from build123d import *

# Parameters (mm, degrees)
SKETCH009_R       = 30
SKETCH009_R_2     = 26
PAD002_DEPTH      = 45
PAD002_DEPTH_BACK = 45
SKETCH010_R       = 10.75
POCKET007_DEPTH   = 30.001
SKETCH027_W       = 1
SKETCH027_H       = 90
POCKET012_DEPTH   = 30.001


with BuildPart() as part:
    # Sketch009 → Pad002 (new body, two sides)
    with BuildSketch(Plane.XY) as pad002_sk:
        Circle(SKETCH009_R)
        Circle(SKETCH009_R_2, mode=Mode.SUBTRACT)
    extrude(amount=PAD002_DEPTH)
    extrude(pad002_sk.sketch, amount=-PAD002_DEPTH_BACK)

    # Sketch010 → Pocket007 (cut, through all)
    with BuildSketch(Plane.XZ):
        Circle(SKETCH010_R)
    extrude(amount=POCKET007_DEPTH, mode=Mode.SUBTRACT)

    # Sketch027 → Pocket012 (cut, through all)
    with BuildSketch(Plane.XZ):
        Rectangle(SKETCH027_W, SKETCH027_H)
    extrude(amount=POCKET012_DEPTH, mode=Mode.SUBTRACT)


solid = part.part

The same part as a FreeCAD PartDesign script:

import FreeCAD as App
import Part
import Sketcher

V = App.Vector
Q = App.Units.Quantity

doc = App.newDocument("Part")
params = doc.addObject("Spreadsheet::Sheet", "Params")
for row, (alias, value) in enumerate([
    ("sketch1_diameter", "60 mm"),
    ("sketch1_diameter2", "52 mm"),
    ("pad1_length", "45 mm"),
    ("pad1_length2", "45 mm"),
    ("sketch2_diameter", "21.5 mm"),
    ("sketch3_width", "1 mm"),
    ("sketch3_height", "90 mm"),
], start=1):
    params.set(f"A{row}", alias)
    params.set(f"B{row}", "=" + value)
    params.setAlias(f"B{row}", alias)

body = doc.addObject("PartDesign::Body", "Body")

# Sketch on XY plane
sketch1 = body.newObject("Sketcher::SketchObject", "Sketch")
sketch1.AttachmentSupport = (doc.getObject("XY_Plane"), [""])
sketch1.MapMode = "FlatFace"
sketch1.addGeometry([
    Part.Circle(V(0, 0, 0), V(0, 0, 1), 30),
    Part.Circle(V(0, 0, 0), V(0, 0, 1), 26),
], False)
sketch1.addConstraint([
    Sketcher.Constraint("Coincident", 0, 3, -1, 1),
    Sketcher.Constraint("Coincident", 1, 3, -1, 1),
    Sketcher.Constraint("Diameter", 0, Q("60 mm")),
    Sketcher.Constraint("Diameter", 1, Q("52 mm")),
])
sketch1.setExpression("Constraints[2]", "Params.sketch1_diameter")
sketch1.setExpression("Constraints[3]", "Params.sketch1_diameter2")
pad1 = body.newObject("PartDesign::Pad", "Pad")
pad1.Profile = sketch1
pad1.Type = "TwoLengths"
pad1.setExpression("Length", "Params.pad1_length")
pad1.setExpression("Length2", "Params.pad1_length2")

# Sketch on XZ plane
sketch2 = body.newObject("Sketcher::SketchObject", "Sketch001")
sketch2.AttachmentSupport = (doc.getObject("XZ_Plane"), [""])
sketch2.MapMode = "FlatFace"
sketch2.addGeometry(Part.Circle(V(0, 0, 0), V(0, 0, 1), 10.75), False)
sketch2.addConstraint([
    Sketcher.Constraint("Coincident", 0, 3, -1, 1),
    Sketcher.Constraint("Diameter", 0, Q("21.5 mm")),
])
sketch2.setExpression("Constraints[1]", "Params.sketch2_diameter")
pocket1 = body.newObject("PartDesign::Pocket", "Pocket")
pocket1.Profile = sketch2
pocket1.Type = "ThroughAll"
pocket1.Reversed = True

# Sketch on XZ plane
sketch3 = body.newObject("Sketcher::SketchObject", "Sketch002")
sketch3.AttachmentSupport = (doc.getObject("XZ_Plane"), [""])
sketch3.MapMode = "FlatFace"
sketch3.addGeometry([
    Part.LineSegment(V(-0.5, 45, 0), V(-0.5, -45, 0)),
    Part.LineSegment(V(-0.5, -45, 0), V(0.5, -45, 0)),
    Part.LineSegment(V(0.5, -45, 0), V(0.5, 45, 0)),
    Part.LineSegment(V(0.5, 45, 0), V(-0.5, 45, 0)),
], False)
sketch3.addConstraint([
    Sketcher.Constraint("Coincident", 0, 2, 1, 1),
    Sketcher.Constraint("Coincident", 1, 2, 2, 1),
    Sketcher.Constraint("Coincident", 2, 2, 3, 1),
    Sketcher.Constraint("Coincident", 3, 2, 0, 1),
    Sketcher.Constraint("Vertical", 0),
    Sketcher.Constraint("Horizontal", 1),
    Sketcher.Constraint("Vertical", 2),
    Sketcher.Constraint("Horizontal", 3),
    Sketcher.Constraint("Symmetric", 0, 2, 2, 2, -1, 1),
    Sketcher.Constraint("DistanceX", 1, 1, 1, 2, Q("1 mm")),
    Sketcher.Constraint("DistanceY", 0, 2, 0, 1, Q("90 mm")),
])
sketch3.setExpression("Constraints[9]", "Params.sketch3_width")
sketch3.setExpression("Constraints[10]", "Params.sketch3_height")
pocket2 = body.newObject("PartDesign::Pocket", "Pocket001")
pocket2.Profile = sketch3
pocket2.Type = "ThroughAll"
pocket2.Reversed = True

doc.recompute()
